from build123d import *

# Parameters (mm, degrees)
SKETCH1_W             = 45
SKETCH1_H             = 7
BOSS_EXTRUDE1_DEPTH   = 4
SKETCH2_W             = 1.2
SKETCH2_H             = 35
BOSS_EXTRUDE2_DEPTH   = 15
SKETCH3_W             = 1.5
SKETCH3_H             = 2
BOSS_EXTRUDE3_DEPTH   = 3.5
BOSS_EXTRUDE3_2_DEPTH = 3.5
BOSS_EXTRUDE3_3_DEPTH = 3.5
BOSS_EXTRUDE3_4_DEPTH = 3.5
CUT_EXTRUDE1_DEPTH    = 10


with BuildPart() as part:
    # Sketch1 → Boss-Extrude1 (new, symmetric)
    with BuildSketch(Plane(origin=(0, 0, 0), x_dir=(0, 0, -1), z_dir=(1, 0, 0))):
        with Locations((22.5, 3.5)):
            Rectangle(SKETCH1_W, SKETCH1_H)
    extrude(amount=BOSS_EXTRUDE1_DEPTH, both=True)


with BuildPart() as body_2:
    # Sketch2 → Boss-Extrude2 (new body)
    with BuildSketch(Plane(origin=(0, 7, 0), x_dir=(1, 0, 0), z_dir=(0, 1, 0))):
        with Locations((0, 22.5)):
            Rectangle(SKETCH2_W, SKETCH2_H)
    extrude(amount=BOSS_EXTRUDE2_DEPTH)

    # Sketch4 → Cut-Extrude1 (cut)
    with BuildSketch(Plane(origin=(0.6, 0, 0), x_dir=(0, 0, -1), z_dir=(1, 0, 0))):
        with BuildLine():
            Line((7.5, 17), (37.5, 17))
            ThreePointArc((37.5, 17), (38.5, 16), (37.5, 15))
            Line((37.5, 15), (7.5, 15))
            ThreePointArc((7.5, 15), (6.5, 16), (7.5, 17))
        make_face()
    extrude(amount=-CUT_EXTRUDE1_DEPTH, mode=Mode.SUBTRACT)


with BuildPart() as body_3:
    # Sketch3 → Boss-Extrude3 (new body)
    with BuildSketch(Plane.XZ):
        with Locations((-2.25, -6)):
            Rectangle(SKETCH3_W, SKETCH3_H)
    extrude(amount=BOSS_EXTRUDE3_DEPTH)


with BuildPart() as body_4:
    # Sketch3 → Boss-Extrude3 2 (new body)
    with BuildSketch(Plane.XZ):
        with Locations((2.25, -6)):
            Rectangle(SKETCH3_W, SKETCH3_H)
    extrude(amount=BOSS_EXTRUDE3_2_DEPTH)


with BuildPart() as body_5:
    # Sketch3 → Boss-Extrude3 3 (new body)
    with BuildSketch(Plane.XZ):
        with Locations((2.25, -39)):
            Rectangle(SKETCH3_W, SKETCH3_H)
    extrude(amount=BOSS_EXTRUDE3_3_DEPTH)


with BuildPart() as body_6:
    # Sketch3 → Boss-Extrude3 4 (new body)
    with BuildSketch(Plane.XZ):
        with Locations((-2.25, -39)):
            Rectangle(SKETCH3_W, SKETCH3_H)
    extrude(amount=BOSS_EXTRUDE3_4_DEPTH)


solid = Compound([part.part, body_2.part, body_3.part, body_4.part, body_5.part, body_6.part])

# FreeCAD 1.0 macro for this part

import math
import FreeCAD as App
import Part
import Sketcher

V = App.Vector


def add_polygon(sketch, points):
    """Adds a closed chain of lines whose ends are joined by coincident constraints."""
    first, n = sketch.GeometryCount, len(points)
    for a, b in zip(points, points[1:] + points[:1]):
        sketch.addGeometry(Part.LineSegment(App.Vector(*a, 0), App.Vector(*b, 0)), False)
    for i in range(n):
        sketch.addConstraint(Sketcher.Constraint("Coincident", first + i, 2, first + (i + 1) % n, 1))

doc = App.newDocument("Part")
params = doc.addObject("Spreadsheet::Sheet", "Params")
for row, (alias, value) in enumerate([
    ("sketch1_width", "7 mm"),
    ("sketch1_height", "45 mm"),
    ("pad1_length", "8 mm"),
    ("sketch2_height", "35 mm"),
    ("sketch2_width", "1.2 mm"),
    ("pad2_length", "15 mm"),
    ("sketch3_radius", "1 mm"),
    ("sketch3_height", "30 mm"),
    ("pocket1_length", "10 mm"),
    ("sketch4_height", "2 mm"),
    ("sketch4_width", "1.5 mm"),
    ("pad3_length", "3.5 mm"),
    ("sketch5_height", "2 mm"),
    ("sketch5_width", "1.5 mm"),
    ("pad4_length", "3.5 mm"),
    ("sketch6_height", "2 mm"),
    ("sketch6_width", "1.5 mm"),
    ("pad5_length", "3.5 mm"),
    ("sketch7_height", "2 mm"),
    ("sketch7_width", "1.5 mm"),
    ("pad6_length", "3.5 mm"),
], start=1):
    params.set(f"A{row}", alias)
    params.set(f"B{row}", "=" + value)
    params.setAlias(f"B{row}", alias)

body = doc.addObject("PartDesign::Body", "Body")

sketch1 = body.newObject("Sketcher::SketchObject", "Sketch")
sketch1.AttachmentSupport = (doc.getObject("YZ_Plane"), [""])
sketch1.MapMode = "FlatFace"
add_polygon(sketch1, [(7, 0), (0, 0), (0, -45), (7, -45)])
sketch1.addConstraint([
    Sketcher.Constraint("Horizontal", 0),
    Sketcher.Constraint("Vertical", 1),
    Sketcher.Constraint("Horizontal", 2),
    Sketcher.Constraint("Vertical", 3),
    Sketcher.Constraint("Coincident", 0, 2, -1, 1),
    Sketcher.Constraint("DistanceX", 0, 2, 0, 1, 7.0),
    Sketcher.Constraint("DistanceY", 1, 2, 1, 1, 45.0),
])
sketch1.setExpression("Constraints[9]", "Params.sketch1_width")
sketch1.setExpression("Constraints[10]", "Params.sketch1_height")
pad1 = body.newObject("PartDesign::Pad", "Pad")
pad1.Profile = sketch1
pad1.setExpression("Length", "Params.pad1_length")
pad1.Midplane = True
body2 = doc.addObject("PartDesign::Body", "Body001")

sketch2 = body2.newObject("Sketcher::SketchObject", "Sketch001")
sketch2.AttachmentSupport = (doc.getObject("XZ_Plane001"), [""])
sketch2.MapMode = "FlatFace"
sketch2.AttachmentOffset = App.Placement(V(0, 0, -7), App.Rotation())
add_polygon(sketch2, [(-0.6, -40), (-0.6, -5), (0.6, -5), (0.6, -40)])
sketch2.addConstraint([
    Sketcher.Constraint("Vertical", 0),
    Sketcher.Constraint("Horizontal", 1),
    Sketcher.Constraint("Vertical", 2),
    Sketcher.Constraint("Horizontal", 3),
    Sketcher.Constraint("DistanceY", 0, 1, 0, 2, 35.0),
    Sketcher.Constraint("DistanceX", 1, 1, 1, 2, 1.2),
    Sketcher.Constraint("DistanceY", 0, 2, -1, 1, 5.0),
    Sketcher.Constraint("DistanceX", 0, 2, -1, 1, 0.6),
])
sketch2.setExpression("Constraints[8]", "Params.sketch2_height")
sketch2.setExpression("Constraints[9]", "Params.sketch2_width")
pad2 = body2.newObject("PartDesign::Pad", "Pad001")
pad2.Profile = sketch2
pad2.setExpression("Length", "Params.pad2_length")
pad2.Reversed = True

sketch3 = body2.newObject("Sketcher::SketchObject", "Sketch002")
sketch3.AttachmentSupport = (doc.getObject("YZ_Plane001"), [""])
sketch3.MapMode = "FlatFace"
sketch3.AttachmentOffset = App.Placement(V(0, 0, 0.6), App.Rotation())
sketch3.addGeometry([
    Part.LineSegment(V(17, -37.5, 0), V(17, -7.5, 0)),
    Part.ArcOfCircle(Part.Circle(V(16, -7.5, 0), V(0, 0, 1), 1), math.radians(0), math.radians(180)),
    Part.LineSegment(V(15, -7.5, 0), V(15, -37.5, 0)),
    Part.ArcOfCircle(Part.Circle(V(16, -37.5, 0), V(0, 0, 1), 1), math.radians(180), math.radians(360)),
], False)
sketch3.addConstraint([
    Sketcher.Constraint("Tangent", 0, 2, 1, 1),
    Sketcher.Constraint("Tangent", 1, 2, 2, 1),
    Sketcher.Constraint("Tangent", 2, 2, 3, 1),
    Sketcher.Constraint("Tangent", 3, 2, 0, 1),
    Sketcher.Constraint("Vertical", 0),
    Sketcher.Constraint("Vertical", 2),
    Sketcher.Constraint("Radius", 1, 1.0),
    Sketcher.Constraint("DistanceY", 0, 1, 0, 2, 30.0),
    Sketcher.Constraint("DistanceX", -1, 1, 1, 3, 16.0),
    Sketcher.Constraint("DistanceY", 1, 3, -1, 1, 7.5),
])
sketch3.setExpression("Constraints[6]", "Params.sketch3_radius")
sketch3.setExpression("Constraints[7]", "Params.sketch3_height")
pocket1 = body2.newObject("PartDesign::Pocket", "Pocket")
pocket1.Profile = sketch3
pocket1.setExpression("Length", "Params.pocket1_length")
body3 = doc.addObject("PartDesign::Body", "Body002")

sketch4 = body3.newObject("Sketcher::SketchObject", "Sketch003")
sketch4.AttachmentSupport = (doc.getObject("XZ_Plane002"), [""])
sketch4.MapMode = "FlatFace"
add_polygon(sketch4, [(-3, -5), (-3, -7), (-1.5, -7), (-1.5, -5)])
sketch4.addConstraint([
    Sketcher.Constraint("Vertical", 0),
    Sketcher.Constraint("Horizontal", 1),
    Sketcher.Constraint("Vertical", 2),
    Sketcher.Constraint("Horizontal", 3),
    Sketcher.Constraint("DistanceY", 0, 2, 0, 1, 2.0),
    Sketcher.Constraint("DistanceX", 1, 1, 1, 2, 1.5),
    Sketcher.Constraint("DistanceX", 0, 2, -1, 1, 3.0),
    Sketcher.Constraint("DistanceY", 0, 2, -1, 1, 7.0),
])
sketch4.setExpression("Constraints[8]", "Params.sketch4_height")
sketch4.setExpression("Constraints[9]", "Params.sketch4_width")
pad3 = body3.newObject("PartDesign::Pad", "Pad002")
pad3.Profile = sketch4
pad3.setExpression("Length", "Params.pad3_length")
body4 = doc.addObject("PartDesign::Body", "Body003")

sketch5 = body4.newObject("Sketcher::SketchObject", "Sketch004")
sketch5.AttachmentSupport = (doc.getObject("XZ_Plane003"), [""])
sketch5.MapMode = "FlatFace"
add_polygon(sketch5, [(1.5, -5), (1.5, -7), (3, -7), (3, -5)])
sketch5.addConstraint([
    Sketcher.Constraint("Vertical", 0),
    Sketcher.Constraint("Horizontal", 1),
    Sketcher.Constraint("Vertical", 2),
    Sketcher.Constraint("Horizontal", 3),
    Sketcher.Constraint("DistanceY", 0, 2, 0, 1, 2.0),
    Sketcher.Constraint("DistanceX", 1, 1, 1, 2, 1.5),
    Sketcher.Constraint("DistanceY", 0, 2, -1, 1, 7.0),
    Sketcher.Constraint("DistanceX", -1, 1, 1, 2, 3.0),
])
sketch5.setExpression("Constraints[8]", "Params.sketch5_height")
sketch5.setExpression("Constraints[9]", "Params.sketch5_width")
pad4 = body4.newObject("PartDesign::Pad", "Pad003")
pad4.Profile = sketch5
pad4.setExpression("Length", "Params.pad4_length")
body5 = doc.addObject("PartDesign::Body", "Body004")

sketch6 = body5.newObject("Sketcher::SketchObject", "Sketch005")
sketch6.AttachmentSupport = (doc.getObject("XZ_Plane004"), [""])
sketch6.MapMode = "FlatFace"
add_polygon(sketch6, [(1.5, -38), (1.5, -40), (3, -40), (3, -38)])
sketch6.addConstraint([
    Sketcher.Constraint("Vertical", 0),
    Sketcher.Constraint("Horizontal", 1),
    Sketcher.Constraint("Vertical", 2),
    Sketcher.Constraint("Horizontal", 3),
    Sketcher.Constraint("DistanceY", 0, 2, 0, 1, 2.0),
    Sketcher.Constraint("DistanceX", 1, 1, 1, 2, 1.5),
    Sketcher.Constraint("DistanceY", 0, 2, -1, 1, 40.0),
    Sketcher.Constraint("DistanceX", -1, 1, 1, 2, 3.0),
])
sketch6.setExpression("Constraints[8]", "Params.sketch6_height")
sketch6.setExpression("Constraints[9]", "Params.sketch6_width")
pad5 = body5.newObject("PartDesign::Pad", "Pad004")
pad5.Profile = sketch6
pad5.setExpression("Length", "Params.pad5_length")
body6 = doc.addObject("PartDesign::Body", "Body005")

sketch7 = body6.newObject("Sketcher::SketchObject", "Sketch006")
sketch7.AttachmentSupport = (doc.getObject("XZ_Plane005"), [""])
sketch7.MapMode = "FlatFace"
add_polygon(sketch7, [(-3, -38), (-3, -40), (-1.5, -40), (-1.5, -38)])
sketch7.addConstraint([
    Sketcher.Constraint("Vertical", 0),
    Sketcher.Constraint("Horizontal", 1),
    Sketcher.Constraint("Vertical", 2),
    Sketcher.Constraint("Horizontal", 3),
    Sketcher.Constraint("DistanceY", 0, 2, 0, 1, 2.0),
    Sketcher.Constraint("DistanceX", 1, 1, 1, 2, 1.5),
    Sketcher.Constraint("DistanceX", 0, 2, -1, 1, 3.0),
    Sketcher.Constraint("DistanceY", 0, 2, -1, 1, 40.0),
])
sketch7.setExpression("Constraints[8]", "Params.sketch7_height")
sketch7.setExpression("Constraints[9]", "Params.sketch7_width")
pad6 = body6.newObject("PartDesign::Pad", "Pad005")
pad6.Profile = sketch7
pad6.setExpression("Length", "Params.pad6_length")

doc.recompute()
